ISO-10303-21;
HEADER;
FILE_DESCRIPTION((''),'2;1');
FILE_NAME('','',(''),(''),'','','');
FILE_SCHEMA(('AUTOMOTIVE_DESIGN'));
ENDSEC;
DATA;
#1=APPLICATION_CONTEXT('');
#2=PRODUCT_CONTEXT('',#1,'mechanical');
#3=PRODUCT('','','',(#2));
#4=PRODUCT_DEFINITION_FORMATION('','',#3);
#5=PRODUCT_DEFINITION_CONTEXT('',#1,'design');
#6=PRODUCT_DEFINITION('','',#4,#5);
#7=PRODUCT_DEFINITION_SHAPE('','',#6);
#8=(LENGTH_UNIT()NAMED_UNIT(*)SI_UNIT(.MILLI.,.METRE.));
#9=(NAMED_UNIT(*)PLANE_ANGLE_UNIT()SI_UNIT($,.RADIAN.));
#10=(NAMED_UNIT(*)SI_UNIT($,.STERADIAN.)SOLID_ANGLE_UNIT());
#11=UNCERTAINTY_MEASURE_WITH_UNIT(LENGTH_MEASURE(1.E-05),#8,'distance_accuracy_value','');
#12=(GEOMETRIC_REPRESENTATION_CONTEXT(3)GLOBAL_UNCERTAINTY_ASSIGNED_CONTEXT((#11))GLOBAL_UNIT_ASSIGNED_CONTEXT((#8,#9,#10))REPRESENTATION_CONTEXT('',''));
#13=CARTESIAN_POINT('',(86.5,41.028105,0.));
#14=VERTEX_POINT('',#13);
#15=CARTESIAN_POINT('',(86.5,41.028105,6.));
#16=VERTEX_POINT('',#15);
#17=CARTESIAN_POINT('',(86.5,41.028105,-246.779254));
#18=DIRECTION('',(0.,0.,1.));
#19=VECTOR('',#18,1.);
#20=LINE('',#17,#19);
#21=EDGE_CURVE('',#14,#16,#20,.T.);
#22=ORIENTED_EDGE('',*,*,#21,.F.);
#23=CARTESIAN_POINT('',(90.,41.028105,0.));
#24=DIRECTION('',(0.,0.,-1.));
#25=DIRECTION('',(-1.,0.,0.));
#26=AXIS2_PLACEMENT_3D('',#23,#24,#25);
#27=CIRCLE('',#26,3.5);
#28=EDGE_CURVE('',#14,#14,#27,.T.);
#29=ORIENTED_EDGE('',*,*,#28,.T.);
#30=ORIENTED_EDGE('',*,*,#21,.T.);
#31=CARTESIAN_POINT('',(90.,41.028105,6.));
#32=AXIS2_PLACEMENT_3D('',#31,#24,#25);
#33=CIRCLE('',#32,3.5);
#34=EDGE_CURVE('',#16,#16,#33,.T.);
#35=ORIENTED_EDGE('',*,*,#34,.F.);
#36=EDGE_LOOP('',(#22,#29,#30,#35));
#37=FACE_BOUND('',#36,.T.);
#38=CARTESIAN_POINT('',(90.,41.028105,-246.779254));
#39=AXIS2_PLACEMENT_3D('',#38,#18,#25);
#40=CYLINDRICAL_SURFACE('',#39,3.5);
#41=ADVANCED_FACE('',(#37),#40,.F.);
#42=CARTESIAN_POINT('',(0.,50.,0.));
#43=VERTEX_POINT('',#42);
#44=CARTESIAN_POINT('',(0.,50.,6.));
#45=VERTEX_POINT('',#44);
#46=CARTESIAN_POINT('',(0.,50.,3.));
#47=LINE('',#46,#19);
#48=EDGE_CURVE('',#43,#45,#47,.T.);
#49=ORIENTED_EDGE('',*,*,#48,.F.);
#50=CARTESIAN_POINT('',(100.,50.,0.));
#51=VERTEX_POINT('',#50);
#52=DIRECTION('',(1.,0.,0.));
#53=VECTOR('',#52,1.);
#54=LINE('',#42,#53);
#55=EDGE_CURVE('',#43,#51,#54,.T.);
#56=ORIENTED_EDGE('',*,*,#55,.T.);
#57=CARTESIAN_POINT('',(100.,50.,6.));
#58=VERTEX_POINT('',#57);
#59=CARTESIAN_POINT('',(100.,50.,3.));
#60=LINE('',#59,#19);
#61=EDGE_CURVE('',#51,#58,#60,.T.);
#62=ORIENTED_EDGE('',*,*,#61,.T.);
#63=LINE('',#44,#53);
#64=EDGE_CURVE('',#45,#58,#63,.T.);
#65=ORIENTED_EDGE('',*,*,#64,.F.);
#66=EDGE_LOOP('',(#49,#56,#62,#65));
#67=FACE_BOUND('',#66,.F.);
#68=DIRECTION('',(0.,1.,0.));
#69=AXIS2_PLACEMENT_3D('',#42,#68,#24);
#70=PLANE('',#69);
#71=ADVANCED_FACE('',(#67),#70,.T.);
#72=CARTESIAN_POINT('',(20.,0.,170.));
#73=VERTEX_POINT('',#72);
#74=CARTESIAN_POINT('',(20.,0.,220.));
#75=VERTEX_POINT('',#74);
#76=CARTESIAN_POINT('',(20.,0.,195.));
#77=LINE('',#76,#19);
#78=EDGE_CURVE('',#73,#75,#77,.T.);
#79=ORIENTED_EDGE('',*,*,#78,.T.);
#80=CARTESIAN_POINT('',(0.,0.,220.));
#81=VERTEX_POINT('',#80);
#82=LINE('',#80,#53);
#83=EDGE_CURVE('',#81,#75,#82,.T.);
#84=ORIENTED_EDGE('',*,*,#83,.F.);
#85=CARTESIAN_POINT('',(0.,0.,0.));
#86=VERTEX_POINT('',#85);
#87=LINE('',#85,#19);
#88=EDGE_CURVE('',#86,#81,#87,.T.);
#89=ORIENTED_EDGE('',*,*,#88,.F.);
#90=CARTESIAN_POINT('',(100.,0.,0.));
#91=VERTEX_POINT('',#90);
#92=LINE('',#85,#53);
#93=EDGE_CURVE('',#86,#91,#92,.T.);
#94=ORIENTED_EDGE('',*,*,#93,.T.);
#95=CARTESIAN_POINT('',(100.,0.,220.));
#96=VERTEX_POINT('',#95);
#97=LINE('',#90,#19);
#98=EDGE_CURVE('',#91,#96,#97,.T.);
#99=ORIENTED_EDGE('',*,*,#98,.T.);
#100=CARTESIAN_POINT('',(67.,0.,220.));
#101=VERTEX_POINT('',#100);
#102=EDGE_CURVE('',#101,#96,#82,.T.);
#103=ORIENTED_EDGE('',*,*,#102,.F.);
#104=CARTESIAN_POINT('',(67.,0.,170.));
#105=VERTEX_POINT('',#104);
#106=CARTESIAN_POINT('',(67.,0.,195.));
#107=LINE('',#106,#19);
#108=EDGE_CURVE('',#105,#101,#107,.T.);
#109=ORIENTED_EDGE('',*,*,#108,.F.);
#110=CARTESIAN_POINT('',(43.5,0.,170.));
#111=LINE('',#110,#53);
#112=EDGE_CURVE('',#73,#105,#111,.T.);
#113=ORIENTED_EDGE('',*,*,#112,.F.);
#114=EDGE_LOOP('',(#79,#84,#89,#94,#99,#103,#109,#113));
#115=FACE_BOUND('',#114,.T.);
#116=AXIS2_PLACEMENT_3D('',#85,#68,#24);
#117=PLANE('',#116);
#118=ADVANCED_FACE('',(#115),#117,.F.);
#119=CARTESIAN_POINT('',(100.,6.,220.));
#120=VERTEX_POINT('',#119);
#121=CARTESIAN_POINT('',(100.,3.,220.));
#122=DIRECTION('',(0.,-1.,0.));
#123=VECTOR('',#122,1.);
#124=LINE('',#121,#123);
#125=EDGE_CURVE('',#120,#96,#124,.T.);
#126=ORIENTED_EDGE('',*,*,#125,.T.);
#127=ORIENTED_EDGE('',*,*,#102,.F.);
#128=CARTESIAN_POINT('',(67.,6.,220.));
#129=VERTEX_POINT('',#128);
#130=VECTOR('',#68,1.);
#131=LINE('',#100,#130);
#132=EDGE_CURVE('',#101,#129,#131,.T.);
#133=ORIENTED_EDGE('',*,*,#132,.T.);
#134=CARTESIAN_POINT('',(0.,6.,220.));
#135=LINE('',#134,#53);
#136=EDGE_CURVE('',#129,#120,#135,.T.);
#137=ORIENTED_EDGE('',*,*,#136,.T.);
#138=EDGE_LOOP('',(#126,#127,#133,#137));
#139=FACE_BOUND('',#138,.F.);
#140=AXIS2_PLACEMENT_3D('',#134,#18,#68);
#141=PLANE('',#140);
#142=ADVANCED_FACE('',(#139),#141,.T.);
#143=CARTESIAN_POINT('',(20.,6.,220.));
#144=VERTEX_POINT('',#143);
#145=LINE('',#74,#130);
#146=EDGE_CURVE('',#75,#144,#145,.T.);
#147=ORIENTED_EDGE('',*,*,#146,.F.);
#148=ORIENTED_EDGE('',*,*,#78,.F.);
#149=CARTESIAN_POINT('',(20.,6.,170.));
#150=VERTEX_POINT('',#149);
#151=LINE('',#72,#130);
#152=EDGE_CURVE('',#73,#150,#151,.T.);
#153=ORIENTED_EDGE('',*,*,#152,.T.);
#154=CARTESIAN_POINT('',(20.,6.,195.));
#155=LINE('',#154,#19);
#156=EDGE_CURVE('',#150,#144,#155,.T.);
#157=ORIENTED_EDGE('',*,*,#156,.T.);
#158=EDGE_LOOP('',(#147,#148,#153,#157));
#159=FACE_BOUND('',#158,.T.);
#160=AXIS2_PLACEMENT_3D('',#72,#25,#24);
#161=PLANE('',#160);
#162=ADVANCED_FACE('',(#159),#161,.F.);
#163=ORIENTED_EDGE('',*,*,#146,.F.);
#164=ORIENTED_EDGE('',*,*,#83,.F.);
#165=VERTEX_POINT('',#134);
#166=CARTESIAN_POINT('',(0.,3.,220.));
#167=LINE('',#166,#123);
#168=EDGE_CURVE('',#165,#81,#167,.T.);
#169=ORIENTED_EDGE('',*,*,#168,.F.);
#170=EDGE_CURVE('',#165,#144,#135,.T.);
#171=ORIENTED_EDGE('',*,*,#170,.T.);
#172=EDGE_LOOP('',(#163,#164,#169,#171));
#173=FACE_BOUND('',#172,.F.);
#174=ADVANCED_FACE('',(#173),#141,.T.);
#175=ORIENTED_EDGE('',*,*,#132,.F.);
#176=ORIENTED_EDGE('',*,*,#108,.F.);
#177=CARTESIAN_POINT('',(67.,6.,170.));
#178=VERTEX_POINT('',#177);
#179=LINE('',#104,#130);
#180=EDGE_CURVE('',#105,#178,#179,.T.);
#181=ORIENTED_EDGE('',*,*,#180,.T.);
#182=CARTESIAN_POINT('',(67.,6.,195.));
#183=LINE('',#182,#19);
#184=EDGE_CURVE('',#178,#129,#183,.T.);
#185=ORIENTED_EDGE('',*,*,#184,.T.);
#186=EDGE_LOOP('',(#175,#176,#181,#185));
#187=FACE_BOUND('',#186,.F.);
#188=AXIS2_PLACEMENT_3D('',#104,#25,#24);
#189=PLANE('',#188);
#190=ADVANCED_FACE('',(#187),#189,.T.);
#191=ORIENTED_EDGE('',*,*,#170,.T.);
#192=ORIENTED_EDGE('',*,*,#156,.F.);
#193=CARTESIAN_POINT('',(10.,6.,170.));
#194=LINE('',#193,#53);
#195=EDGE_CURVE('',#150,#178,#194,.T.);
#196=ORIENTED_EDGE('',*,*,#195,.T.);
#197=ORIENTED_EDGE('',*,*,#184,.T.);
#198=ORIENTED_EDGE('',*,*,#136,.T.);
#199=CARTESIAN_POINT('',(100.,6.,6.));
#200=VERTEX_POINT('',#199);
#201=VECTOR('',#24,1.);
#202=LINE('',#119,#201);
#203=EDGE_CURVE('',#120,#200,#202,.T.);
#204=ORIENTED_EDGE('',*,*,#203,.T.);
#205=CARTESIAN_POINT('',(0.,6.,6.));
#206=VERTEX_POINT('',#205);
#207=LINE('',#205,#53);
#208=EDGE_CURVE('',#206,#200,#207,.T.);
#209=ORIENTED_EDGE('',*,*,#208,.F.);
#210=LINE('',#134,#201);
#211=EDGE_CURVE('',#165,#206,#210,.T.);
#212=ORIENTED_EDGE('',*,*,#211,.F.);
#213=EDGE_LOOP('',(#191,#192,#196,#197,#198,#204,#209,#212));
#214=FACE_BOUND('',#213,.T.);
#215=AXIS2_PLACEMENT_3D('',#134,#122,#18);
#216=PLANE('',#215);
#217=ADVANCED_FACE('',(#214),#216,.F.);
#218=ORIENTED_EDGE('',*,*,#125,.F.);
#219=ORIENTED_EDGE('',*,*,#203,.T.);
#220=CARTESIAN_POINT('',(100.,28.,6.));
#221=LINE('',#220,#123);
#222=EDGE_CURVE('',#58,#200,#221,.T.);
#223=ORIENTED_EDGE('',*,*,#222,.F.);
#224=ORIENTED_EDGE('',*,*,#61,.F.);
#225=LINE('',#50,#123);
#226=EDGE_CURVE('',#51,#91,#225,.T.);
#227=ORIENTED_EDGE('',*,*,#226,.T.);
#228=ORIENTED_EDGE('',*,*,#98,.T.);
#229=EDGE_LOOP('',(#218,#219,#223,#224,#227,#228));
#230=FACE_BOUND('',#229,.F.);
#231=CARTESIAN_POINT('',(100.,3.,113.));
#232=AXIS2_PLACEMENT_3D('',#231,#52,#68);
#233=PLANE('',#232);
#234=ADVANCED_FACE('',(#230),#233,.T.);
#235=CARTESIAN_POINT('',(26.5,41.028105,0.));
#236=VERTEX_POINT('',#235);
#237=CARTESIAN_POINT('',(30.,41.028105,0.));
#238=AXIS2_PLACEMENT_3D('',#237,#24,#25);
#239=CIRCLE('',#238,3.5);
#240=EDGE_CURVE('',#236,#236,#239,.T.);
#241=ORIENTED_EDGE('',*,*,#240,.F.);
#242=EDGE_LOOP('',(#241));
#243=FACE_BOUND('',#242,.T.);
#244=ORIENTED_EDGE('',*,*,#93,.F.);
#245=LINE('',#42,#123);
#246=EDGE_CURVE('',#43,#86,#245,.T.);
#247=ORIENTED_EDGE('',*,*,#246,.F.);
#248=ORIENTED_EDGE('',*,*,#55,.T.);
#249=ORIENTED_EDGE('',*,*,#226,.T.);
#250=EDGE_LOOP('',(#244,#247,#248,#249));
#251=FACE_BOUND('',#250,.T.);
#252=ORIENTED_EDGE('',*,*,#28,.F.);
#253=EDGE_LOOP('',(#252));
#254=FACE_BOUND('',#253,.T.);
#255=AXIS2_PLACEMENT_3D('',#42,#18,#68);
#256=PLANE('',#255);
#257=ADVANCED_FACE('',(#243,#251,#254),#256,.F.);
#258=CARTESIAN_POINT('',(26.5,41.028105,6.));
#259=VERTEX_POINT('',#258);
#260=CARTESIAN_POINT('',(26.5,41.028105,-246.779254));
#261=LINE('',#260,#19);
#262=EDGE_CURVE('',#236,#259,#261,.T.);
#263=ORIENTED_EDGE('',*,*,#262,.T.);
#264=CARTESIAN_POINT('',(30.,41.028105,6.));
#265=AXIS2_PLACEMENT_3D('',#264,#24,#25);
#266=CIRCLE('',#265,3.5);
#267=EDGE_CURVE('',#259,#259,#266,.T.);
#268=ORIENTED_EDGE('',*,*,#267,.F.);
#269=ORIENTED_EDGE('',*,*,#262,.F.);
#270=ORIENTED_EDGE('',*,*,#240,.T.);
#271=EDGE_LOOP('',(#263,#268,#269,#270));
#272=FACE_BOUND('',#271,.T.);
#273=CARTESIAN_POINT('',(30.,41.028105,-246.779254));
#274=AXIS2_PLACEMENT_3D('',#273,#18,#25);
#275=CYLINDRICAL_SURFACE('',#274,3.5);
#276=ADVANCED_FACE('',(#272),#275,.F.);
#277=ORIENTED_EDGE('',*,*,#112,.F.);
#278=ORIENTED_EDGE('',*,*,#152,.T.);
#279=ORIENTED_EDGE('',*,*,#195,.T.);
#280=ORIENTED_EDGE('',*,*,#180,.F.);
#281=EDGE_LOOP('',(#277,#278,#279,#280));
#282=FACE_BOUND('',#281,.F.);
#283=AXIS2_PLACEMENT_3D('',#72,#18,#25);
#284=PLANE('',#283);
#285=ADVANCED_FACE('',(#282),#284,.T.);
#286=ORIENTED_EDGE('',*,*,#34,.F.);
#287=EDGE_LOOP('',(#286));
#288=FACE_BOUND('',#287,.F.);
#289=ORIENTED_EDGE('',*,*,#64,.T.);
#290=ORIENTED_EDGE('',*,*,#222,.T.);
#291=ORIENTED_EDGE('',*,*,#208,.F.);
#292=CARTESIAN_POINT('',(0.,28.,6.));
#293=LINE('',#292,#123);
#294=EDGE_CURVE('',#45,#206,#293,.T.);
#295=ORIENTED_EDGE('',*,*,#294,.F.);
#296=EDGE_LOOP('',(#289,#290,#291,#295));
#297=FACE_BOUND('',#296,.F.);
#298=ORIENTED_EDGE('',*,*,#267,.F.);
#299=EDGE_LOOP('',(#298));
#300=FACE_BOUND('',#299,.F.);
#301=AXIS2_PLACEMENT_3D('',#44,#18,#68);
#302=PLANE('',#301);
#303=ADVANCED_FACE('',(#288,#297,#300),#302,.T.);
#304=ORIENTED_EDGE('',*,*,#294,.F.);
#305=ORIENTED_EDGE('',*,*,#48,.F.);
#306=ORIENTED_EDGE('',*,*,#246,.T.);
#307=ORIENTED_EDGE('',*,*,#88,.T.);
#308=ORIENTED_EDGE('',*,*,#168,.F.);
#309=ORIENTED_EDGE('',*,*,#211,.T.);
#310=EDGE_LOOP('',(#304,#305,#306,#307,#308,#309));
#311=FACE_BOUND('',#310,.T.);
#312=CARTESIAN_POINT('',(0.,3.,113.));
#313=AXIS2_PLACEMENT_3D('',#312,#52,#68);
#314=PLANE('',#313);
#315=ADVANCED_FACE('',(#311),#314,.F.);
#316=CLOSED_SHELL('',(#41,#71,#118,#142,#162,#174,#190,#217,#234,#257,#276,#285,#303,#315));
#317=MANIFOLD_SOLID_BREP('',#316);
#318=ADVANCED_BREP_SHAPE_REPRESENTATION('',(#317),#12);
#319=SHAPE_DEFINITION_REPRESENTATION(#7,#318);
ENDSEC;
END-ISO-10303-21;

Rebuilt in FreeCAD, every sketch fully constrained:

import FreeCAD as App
import Part
import Sketcher
from FreeCAD import Vector

doc = App.newDocument("Part")
body = doc.addObject("PartDesign::Body", "Body")

sketch1 = body.newObject("Sketcher::SketchObject", "Sketch")
sketch1.AttachmentSupport = (doc.getObject("YZ_Plane"), [""])
sketch1.MapMode = "FlatFace"
sketch1.addGeometry([
    Part.LineSegment(Vector(-6, 220, 0), Vector(-6, 6, 0)),
    Part.LineSegment(Vector(-6, 6, 0), Vector(-50, 6, 0)),
    Part.LineSegment(Vector(-50, 6, 0), Vector(-50, 0, 0)),
    Part.LineSegment(Vector(-50, 0, 0), Vector(0, 0, 0)),
    Part.LineSegment(Vector(0, 0, 0), Vector(0, 220, 0)),
    Part.LineSegment(Vector(0, 220, 0), Vector(-6, 220, 0)),
], False)
sketch1.addConstraint([
    Sketcher.Constraint("Coincident", 0, 2, 1, 1),
    Sketcher.Constraint("Coincident", 1, 2, 2, 1),
    Sketcher.Constraint("Coincident", 2, 2, 3, 1),
    Sketcher.Constraint("Coincident", 3, 2, 4, 1),
    Sketcher.Constraint("Coincident", 4, 2, 5, 1),
    Sketcher.Constraint("Coincident", 5, 2, 0, 1),
    Sketcher.Constraint("Vertical", 0),
    Sketcher.Constraint("Horizontal", 1),
    Sketcher.Constraint("Vertical", 2),
    Sketcher.Constraint("Horizontal", 3),
    Sketcher.Constraint("Vertical", 4),
    Sketcher.Constraint("Horizontal", 5),
    Sketcher.Constraint("Coincident", 3, 2, -1, 1),
    Sketcher.Constraint("Equal", 5, 2),
    Sketcher.Constraint("DistanceX", 1, 2, 1, 1, 44.0),
    Sketcher.Constraint("DistanceX", 3, 1, 3, 2, 50.0),
    Sketcher.Constraint("DistanceY", 0, 2, 0, 1, 214.0),
])
pad1 = body.newObject("PartDesign::Pad", "Pad")
pad1.Profile = sketch1
pad1.Length = 100

sketch2 = body.newObject("Sketcher::SketchObject", "Sketch001")
sketch2.AttachmentSupport = (doc.getObject("XY_Plane"), [""])
sketch2.MapMode = "FlatFace"
sketch2.addGeometry([
    Part.Circle(Vector(30, -41, 0), Vector(0, 0, 1), 3.5),
    Part.Circle(Vector(90, -41, 0), Vector(0, 0, 1), 3.5),
], False)
sketch2.addConstraint([
    Sketcher.Constraint("Equal", 0, 1),
    Sketcher.Constraint("Horizontal", 0, 3, 1, 3),
    Sketcher.Constraint("Diameter", 0, 7.0),
    Sketcher.Constraint("DistanceX", -1, 1, 0, 3, 30.0),
    Sketcher.Constraint("DistanceX", -1, 1, 1, 3, 90.0),
    Sketcher.Constraint("DistanceY", 0, 3, -1, 1, 41.028105),
])
doc.recompute()
hole = body.newObject("PartDesign::Hole", "Hole")
hole.Profile = sketch2
hole.ThreadType = "None"
hole.Diameter = 7
hole.DepthType = "ThroughAll"
hole.Reversed = True

sketch3 = body.newObject("Sketcher::SketchObject", "Sketch002")
sketch3.AttachmentSupport = (doc.getObject("XZ_Plane"), [""])
sketch3.MapMode = "FlatFace"
sketch3.addGeometry([
    Part.LineSegment(Vector(20, 220, 0), Vector(20, 170, 0)),
    Part.LineSegment(Vector(20, 170, 0), Vector(67, 170, 0)),
    Part.LineSegment(Vector(67, 170, 0), Vector(67, 220, 0)),
    Part.LineSegment(Vector(67, 220, 0), Vector(20, 220, 0)),
], False)
sketch3.addConstraint([
    Sketcher.Constraint("Coincident", 0, 2, 1, 1),
    Sketcher.Constraint("Coincident", 1, 2, 2, 1),
    Sketcher.Constraint("Coincident", 2, 2, 3, 1),
    Sketcher.Constraint("Coincident", 3, 2, 0, 1),
    Sketcher.Constraint("Vertical", 0),
    Sketcher.Constraint("Horizontal", 1),
    Sketcher.Constraint("Vertical", 2),
    Sketcher.Constraint("Horizontal", 3),
    Sketcher.Constraint("DistanceX", 1, 1, 1, 2, 47.0),
    Sketcher.Constraint("DistanceY", 0, 2, 0, 1, 50.0),
    Sketcher.Constraint("DistanceX", -1, 1, 0, 2, 20.0),
    Sketcher.Constraint("DistanceY", -1, 1, 0, 2, 170.0),
])
pocket1 = body.newObject("PartDesign::Pocket", "Pocket")
pocket1.Profile = sketch3
pocket1.Length = 25
pocket1.Reversed = True
body2 = doc.addObject("PartDesign::Body", "Body001")
doc.recompute()

mirroring = doc.addObject("Part::Mirroring", "Mirroring")
mirroring.Source = body
mirroring.Base = Vector(0, 0, 0)
mirroring.Normal = Vector(0, -1, 0)
body2.BaseFeature = mirroring
doc.recompute()
body3 = doc.addObject("PartDesign::Body", "Body002")
doc.recompute()

mirroring2 = doc.addObject("Part::Mirroring", "Mirroring001")
mirroring2.Source = body
mirroring2.Base = Vector(0, 0, 0)
mirroring2.Normal = Vector(0, -1, 0)
body3.BaseFeature = mirroring2
doc.recompute()
body.Visibility = False
body2.Visibility = False
mirroring.Visibility = False
mirroring2.Visibility = False

doc.recompute()
